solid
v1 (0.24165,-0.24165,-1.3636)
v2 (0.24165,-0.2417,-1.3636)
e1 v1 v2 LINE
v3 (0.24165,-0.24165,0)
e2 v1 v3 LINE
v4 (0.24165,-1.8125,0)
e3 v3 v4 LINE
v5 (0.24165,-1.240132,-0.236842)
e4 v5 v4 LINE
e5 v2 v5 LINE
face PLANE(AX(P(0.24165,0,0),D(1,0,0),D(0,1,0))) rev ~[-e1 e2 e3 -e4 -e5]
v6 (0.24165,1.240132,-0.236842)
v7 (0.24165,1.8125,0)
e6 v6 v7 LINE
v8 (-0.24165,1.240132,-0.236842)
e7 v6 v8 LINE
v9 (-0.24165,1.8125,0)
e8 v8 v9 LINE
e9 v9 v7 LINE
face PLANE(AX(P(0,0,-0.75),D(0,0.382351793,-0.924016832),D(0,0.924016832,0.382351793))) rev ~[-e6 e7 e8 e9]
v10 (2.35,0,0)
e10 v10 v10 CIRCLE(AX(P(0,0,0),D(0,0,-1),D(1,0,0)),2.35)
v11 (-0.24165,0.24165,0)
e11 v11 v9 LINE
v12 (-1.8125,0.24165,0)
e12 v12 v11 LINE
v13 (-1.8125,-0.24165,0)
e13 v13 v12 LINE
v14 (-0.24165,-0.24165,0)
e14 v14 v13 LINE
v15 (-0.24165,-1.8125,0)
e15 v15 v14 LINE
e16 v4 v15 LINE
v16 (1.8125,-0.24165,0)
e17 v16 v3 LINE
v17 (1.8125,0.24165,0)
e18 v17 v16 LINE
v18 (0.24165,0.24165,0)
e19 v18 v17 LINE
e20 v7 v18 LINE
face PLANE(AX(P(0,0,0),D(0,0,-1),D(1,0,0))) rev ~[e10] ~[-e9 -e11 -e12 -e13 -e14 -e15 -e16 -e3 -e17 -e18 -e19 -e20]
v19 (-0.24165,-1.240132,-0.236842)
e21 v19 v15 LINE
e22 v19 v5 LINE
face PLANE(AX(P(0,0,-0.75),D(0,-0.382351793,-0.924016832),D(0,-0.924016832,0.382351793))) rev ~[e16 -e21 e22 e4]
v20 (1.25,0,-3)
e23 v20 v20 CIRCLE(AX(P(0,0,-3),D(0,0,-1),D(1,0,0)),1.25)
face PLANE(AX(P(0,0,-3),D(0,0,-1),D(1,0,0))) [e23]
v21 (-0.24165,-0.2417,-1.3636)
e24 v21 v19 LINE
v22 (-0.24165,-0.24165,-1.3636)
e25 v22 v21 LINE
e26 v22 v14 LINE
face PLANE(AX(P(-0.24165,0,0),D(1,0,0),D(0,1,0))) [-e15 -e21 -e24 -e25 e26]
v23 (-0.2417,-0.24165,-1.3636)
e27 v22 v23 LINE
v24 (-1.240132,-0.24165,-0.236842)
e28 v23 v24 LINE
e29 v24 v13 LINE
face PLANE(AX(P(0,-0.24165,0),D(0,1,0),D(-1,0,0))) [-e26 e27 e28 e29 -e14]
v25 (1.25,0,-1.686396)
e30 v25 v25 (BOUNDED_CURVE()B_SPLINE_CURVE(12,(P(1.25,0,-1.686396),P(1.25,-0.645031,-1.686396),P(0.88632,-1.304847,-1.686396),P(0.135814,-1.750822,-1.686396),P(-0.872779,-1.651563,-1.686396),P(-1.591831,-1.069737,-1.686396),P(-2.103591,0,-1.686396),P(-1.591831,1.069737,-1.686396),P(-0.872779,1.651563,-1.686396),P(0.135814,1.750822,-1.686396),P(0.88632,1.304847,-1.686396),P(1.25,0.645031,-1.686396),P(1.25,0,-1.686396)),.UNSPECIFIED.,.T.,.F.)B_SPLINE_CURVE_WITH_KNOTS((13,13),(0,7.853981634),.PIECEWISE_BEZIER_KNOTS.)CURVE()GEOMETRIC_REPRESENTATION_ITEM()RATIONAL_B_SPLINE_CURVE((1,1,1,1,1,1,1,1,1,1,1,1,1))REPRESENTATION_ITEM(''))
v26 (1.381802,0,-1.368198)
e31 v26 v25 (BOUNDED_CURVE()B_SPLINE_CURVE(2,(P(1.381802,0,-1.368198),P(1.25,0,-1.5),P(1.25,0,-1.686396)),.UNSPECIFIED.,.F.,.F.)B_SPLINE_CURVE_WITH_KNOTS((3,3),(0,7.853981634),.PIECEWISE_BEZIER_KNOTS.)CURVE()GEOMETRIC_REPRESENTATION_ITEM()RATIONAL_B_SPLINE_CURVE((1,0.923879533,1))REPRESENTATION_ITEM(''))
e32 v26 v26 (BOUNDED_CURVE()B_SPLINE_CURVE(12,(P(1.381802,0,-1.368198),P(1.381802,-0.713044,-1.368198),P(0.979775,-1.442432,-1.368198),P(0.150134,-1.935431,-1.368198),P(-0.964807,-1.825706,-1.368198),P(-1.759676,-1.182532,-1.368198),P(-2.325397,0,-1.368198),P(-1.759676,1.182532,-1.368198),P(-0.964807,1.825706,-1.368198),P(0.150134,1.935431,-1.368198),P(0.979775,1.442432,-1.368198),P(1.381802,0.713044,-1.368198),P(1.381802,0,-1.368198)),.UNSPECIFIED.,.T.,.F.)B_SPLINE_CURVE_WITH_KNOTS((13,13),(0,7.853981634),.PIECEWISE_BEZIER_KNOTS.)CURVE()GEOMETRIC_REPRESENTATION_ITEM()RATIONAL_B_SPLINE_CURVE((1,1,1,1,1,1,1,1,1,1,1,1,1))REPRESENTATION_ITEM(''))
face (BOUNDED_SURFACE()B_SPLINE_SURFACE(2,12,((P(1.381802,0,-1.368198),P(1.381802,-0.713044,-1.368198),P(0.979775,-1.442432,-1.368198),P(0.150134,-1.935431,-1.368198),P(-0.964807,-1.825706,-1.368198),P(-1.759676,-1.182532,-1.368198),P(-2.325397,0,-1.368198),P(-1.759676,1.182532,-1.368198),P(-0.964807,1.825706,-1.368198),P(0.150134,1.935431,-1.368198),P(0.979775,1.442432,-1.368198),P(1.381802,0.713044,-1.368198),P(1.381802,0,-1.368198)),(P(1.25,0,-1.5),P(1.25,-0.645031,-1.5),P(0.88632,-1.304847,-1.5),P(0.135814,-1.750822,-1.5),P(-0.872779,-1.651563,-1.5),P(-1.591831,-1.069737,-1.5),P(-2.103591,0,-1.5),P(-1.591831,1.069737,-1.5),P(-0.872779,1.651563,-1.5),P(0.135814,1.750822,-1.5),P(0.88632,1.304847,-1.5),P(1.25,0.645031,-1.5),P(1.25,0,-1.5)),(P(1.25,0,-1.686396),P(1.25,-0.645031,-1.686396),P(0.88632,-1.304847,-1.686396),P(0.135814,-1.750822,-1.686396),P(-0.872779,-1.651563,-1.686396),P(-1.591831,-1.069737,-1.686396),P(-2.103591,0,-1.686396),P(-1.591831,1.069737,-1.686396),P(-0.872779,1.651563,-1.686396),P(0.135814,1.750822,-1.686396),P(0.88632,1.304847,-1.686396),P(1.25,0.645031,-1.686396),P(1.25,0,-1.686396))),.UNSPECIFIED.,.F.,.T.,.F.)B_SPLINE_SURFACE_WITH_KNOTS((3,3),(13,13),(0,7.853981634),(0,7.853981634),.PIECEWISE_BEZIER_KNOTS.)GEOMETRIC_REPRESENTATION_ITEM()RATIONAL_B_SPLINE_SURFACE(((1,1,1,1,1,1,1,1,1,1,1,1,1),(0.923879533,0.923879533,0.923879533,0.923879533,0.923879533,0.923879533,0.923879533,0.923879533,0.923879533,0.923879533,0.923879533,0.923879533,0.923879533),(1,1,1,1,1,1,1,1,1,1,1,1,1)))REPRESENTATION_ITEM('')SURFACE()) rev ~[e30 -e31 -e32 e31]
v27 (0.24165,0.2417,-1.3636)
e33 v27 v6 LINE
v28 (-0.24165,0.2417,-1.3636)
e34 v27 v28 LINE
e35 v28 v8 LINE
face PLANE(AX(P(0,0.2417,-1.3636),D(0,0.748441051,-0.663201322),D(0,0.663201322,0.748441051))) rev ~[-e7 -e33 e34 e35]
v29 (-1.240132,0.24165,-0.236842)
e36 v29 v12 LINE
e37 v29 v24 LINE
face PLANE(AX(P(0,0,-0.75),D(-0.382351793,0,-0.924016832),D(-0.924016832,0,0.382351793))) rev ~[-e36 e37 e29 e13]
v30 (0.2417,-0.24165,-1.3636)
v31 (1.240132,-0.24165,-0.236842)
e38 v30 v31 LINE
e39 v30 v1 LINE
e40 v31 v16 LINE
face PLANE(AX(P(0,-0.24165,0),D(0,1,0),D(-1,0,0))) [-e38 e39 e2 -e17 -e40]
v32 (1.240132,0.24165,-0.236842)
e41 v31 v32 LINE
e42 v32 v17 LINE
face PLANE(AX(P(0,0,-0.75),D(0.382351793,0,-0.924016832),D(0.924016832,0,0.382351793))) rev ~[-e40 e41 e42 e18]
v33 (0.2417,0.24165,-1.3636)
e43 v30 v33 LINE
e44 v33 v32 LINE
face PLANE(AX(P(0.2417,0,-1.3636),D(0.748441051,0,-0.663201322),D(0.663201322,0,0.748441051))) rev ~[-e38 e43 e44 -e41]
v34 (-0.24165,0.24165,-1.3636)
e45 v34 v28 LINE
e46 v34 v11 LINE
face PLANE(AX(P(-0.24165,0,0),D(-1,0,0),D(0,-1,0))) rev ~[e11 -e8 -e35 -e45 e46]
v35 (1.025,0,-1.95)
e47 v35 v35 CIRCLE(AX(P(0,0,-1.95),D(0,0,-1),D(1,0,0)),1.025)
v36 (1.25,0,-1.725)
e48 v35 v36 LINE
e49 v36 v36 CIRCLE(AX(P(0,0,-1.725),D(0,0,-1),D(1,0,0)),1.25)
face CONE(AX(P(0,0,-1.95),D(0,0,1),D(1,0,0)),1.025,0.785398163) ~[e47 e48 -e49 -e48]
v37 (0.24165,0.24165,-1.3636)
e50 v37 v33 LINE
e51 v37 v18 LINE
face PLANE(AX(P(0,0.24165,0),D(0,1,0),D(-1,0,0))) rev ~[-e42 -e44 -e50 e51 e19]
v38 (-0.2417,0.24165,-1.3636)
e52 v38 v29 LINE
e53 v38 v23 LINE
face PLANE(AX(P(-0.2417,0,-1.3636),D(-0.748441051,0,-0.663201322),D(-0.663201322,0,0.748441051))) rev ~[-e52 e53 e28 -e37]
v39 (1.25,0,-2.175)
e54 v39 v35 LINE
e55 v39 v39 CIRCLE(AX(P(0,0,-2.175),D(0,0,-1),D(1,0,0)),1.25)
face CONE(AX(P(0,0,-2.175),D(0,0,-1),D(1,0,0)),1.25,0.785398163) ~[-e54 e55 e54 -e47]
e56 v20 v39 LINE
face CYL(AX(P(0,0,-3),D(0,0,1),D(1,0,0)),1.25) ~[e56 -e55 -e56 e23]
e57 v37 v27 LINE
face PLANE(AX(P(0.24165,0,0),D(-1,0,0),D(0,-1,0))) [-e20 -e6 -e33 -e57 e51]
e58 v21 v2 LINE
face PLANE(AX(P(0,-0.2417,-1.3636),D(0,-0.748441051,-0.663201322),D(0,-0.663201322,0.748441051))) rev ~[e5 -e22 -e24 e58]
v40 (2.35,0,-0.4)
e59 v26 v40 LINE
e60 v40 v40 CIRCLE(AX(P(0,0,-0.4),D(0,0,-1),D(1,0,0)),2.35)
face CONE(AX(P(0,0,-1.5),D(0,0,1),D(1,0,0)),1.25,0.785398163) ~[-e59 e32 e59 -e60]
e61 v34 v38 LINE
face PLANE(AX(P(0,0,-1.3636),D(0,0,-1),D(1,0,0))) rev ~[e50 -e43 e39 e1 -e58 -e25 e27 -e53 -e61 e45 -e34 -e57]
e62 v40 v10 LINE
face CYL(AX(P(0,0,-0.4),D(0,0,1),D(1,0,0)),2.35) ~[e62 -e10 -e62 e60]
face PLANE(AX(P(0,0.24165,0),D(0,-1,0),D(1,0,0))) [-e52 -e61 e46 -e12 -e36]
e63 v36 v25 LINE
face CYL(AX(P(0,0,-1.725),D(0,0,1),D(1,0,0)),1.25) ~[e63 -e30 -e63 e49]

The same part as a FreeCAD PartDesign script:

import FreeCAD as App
import Part
import Sketcher
from FreeCAD import Vector


def edges_at(feature, points):
    """Names of the edges that pass closest to the given points."""
    edges = feature.Shape.Edges
    near = lambda p: min(range(len(edges)), key=lambda i: edges[i].distToShape(Part.Vertex(*p))[0])
    return sorted({f"Edge{near(p) + 1}" for p in points})


def add_polygon(sketch, points):
    """Adds a closed chain of lines whose ends are joined by coincident constraints."""
    first, n = sketch.GeometryCount, len(points)
    for a, b in zip(points, points[1:] + points[:1]):
        sketch.addGeometry(Part.LineSegment(App.Vector(*a, 0), App.Vector(*b, 0)), False)
    for i in range(n):
        sketch.addConstraint(Sketcher.Constraint("Coincident", first + i, 2, first + (i + 1) % n, 1))

doc = App.newDocument("Part")
params = doc.addObject("Spreadsheet::Sheet", "Params")
for row, (alias, value) in enumerate([
    ("sketch1_height", "3 mm"),
    ("sketch1_width", "2.35 mm"),
    ("sketch1_width2", "1.25 mm"),
    ("revolution_angle", "360 deg"),
    ("sketch2_width", "1.45 mm"),
    ("pocket1_length", "0.4833 mm"),
    ("sketch3_height", "0.75 mm"),
    ("pocket2_length", "0.4833 mm"),
    ("fillet_radius", "0.45 mm"),
], start=1):
    params.set(f"A{row}", alias)
    params.set(f"B{row}", "=" + value)
    params.setAlias(f"B{row}", alias)

body = doc.addObject("PartDesign::Body", "Body")

sketch1 = body.newObject("Sketcher::SketchObject", "Sketch")
sketch1.AttachmentSupport = (doc.getObject("XZ_Plane"), [""])
sketch1.MapMode = "FlatFace"
add_polygon(sketch1, [(0, 0), (2.35, 0), (2.35, -0.4), (1.25, -1.5), (1.25, -1.73), (1.02, -1.95), (1.25, -2.17), (1.25, -3), (0, -3)])
sketch1.addConstraint(Sketcher.Constraint("Horizontal", 0))
sketch1.addConstraint(Sketcher.Constraint("Vertical", 1))
sketch1.addConstraint(Sketcher.Constraint("Vertical", 3))
sketch1.addConstraint(Sketcher.Constraint("Vertical", 6))
sketch1.addConstraint(Sketcher.Constraint("Horizontal", 7))
sketch1.addConstraint(Sketcher.Constraint("Vertical", 8))
sketch1.addConstraint(Sketcher.Constraint("Coincident", 8, 2, -1, 1))
sketch1.addConstraint(Sketcher.Constraint("Parallel", 2, 4))
sketch1.addConstraint(Sketcher.Constraint("Perpendicular", 4, 5))
sketch1.addConstraint(Sketcher.Constraint("Vertical", 3, 2, 5, 2))
sketch1.addConstraint(Sketcher.Constraint("Equal", 4, 5))
sketch1.addConstraint(Sketcher.Constraint("DistanceY", 8, 1, 8, 2, 3.0))
sketch1.addConstraint(Sketcher.Constraint("DistanceX", 0, 1, 0, 2, 2.35))
sketch1.addConstraint(Sketcher.Constraint("DistanceX", 7, 2, 7, 1, 1.25))
sketch1.addConstraint(Sketcher.Constraint("DistanceY", 2, 2, -1, 1, 1.5))
sketch1.addConstraint(Sketcher.Constraint("DistanceY", 3, 2, 3, 1, 0.225))
sketch1.addConstraint(Sketcher.Constraint("DistanceX", -1, 1, 4, 2, 1.025))
sketch1.setExpression("Constraints[20]", "Params.sketch1_height")
sketch1.setExpression("Constraints[21]", "Params.sketch1_width")
sketch1.setExpression("Constraints[22]", "Params.sketch1_width2")
revolution = body.newObject("PartDesign::Revolution", "Revolution")
revolution.Profile = sketch1
revolution.ReferenceAxis = (sketch1, ["V_Axis"])
revolution.setExpression("Angle", "Params.revolution_angle")

sketch2 = body.newObject("Sketcher::SketchObject", "Sketch001")
sketch2.AttachmentSupport = (doc.getObject("XZ_Plane"), [""])
sketch2.MapMode = "FlatFace"
add_polygon(sketch2, [(0, 0), (1.45, 0), (0.24, -1.36), (0, -1.36)])
sketch2.addConstraint(Sketcher.Constraint("Horizontal", 0))
sketch2.addConstraint(Sketcher.Constraint("Horizontal", 2))
sketch2.addConstraint(Sketcher.Constraint("Vertical", 3))
sketch2.addConstraint(Sketcher.Constraint("Coincident", 3, 2, -1, 1))
sketch2.addConstraint(Sketcher.Constraint("DistanceX", 0, 1, 0, 2, 1.45))
sketch2.addConstraint(Sketcher.Constraint("DistanceX", 2, 2, 2, 1, 0.2417))
sketch2.addConstraint(Sketcher.Constraint("DistanceY", 3, 1, 3, 2, 1.3636))
sketch2.setExpression("Constraints[8]", "Params.sketch2_width")
pocket1 = body.newObject("PartDesign::Pocket", "Pocket")
pocket1.Profile = sketch2
pocket1.setExpression("Length", "Params.pocket1_length")
pocket1.Midplane = True
doc.recompute()

polarpattern = body.newObject("PartDesign::PolarPattern", "PolarPattern")
polarpattern.Originals = [pocket1]
polarpattern.Axis = (doc.getObject("Z_Axis"), [""])
polarpattern.Angle = 360
polarpattern.Occurrences = 4
body.Tip = polarpattern

sketch3 = body.newObject("Sketcher::SketchObject", "Sketch002")
sketch3.AttachmentSupport = (doc.getObject("XZ_Plane"), [""])
sketch3.MapMode = "FlatFace"
add_polygon(sketch3, [(1.8, 0), (0, -0.8), (0, 0)])
sketch3.addConstraint(Sketcher.Constraint("Vertical", 1))
sketch3.addConstraint(Sketcher.Constraint("Horizontal", 2))
sketch3.addConstraint(Sketcher.Constraint("Coincident", 1, 2, -1, 1))
sketch3.addConstraint(Sketcher.Constraint("DistanceY", 1, 1, 1, 2, 0.75))
sketch3.addConstraint(Sketcher.Constraint("DistanceX", 2, 1, 2, 2, 1.8125))
sketch3.setExpression("Constraints[6]", "Params.sketch3_height")
pocket2 = body.newObject("PartDesign::Pocket", "Pocket001")
pocket2.Profile = sketch3
pocket2.setExpression("Length", "Params.pocket2_length")
pocket2.Midplane = True
doc.recompute()

polarpattern2 = body.newObject("PartDesign::PolarPattern", "PolarPattern001")
polarpattern2.Originals = [pocket2]
polarpattern2.Axis = (doc.getObject("Z_Axis"), [""])
polarpattern2.Angle = 360
polarpattern2.Occurrences = 4
body.Tip = polarpattern2
doc.recompute()

fillet = body.newObject("PartDesign::Fillet", "Fillet")
fillet.Base = (polarpattern2, edges_at(polarpattern2, [(-1.25, 0, -1.5)]))
fillet.setExpression("Radius", "Params.fillet_radius")

doc.recompute()
